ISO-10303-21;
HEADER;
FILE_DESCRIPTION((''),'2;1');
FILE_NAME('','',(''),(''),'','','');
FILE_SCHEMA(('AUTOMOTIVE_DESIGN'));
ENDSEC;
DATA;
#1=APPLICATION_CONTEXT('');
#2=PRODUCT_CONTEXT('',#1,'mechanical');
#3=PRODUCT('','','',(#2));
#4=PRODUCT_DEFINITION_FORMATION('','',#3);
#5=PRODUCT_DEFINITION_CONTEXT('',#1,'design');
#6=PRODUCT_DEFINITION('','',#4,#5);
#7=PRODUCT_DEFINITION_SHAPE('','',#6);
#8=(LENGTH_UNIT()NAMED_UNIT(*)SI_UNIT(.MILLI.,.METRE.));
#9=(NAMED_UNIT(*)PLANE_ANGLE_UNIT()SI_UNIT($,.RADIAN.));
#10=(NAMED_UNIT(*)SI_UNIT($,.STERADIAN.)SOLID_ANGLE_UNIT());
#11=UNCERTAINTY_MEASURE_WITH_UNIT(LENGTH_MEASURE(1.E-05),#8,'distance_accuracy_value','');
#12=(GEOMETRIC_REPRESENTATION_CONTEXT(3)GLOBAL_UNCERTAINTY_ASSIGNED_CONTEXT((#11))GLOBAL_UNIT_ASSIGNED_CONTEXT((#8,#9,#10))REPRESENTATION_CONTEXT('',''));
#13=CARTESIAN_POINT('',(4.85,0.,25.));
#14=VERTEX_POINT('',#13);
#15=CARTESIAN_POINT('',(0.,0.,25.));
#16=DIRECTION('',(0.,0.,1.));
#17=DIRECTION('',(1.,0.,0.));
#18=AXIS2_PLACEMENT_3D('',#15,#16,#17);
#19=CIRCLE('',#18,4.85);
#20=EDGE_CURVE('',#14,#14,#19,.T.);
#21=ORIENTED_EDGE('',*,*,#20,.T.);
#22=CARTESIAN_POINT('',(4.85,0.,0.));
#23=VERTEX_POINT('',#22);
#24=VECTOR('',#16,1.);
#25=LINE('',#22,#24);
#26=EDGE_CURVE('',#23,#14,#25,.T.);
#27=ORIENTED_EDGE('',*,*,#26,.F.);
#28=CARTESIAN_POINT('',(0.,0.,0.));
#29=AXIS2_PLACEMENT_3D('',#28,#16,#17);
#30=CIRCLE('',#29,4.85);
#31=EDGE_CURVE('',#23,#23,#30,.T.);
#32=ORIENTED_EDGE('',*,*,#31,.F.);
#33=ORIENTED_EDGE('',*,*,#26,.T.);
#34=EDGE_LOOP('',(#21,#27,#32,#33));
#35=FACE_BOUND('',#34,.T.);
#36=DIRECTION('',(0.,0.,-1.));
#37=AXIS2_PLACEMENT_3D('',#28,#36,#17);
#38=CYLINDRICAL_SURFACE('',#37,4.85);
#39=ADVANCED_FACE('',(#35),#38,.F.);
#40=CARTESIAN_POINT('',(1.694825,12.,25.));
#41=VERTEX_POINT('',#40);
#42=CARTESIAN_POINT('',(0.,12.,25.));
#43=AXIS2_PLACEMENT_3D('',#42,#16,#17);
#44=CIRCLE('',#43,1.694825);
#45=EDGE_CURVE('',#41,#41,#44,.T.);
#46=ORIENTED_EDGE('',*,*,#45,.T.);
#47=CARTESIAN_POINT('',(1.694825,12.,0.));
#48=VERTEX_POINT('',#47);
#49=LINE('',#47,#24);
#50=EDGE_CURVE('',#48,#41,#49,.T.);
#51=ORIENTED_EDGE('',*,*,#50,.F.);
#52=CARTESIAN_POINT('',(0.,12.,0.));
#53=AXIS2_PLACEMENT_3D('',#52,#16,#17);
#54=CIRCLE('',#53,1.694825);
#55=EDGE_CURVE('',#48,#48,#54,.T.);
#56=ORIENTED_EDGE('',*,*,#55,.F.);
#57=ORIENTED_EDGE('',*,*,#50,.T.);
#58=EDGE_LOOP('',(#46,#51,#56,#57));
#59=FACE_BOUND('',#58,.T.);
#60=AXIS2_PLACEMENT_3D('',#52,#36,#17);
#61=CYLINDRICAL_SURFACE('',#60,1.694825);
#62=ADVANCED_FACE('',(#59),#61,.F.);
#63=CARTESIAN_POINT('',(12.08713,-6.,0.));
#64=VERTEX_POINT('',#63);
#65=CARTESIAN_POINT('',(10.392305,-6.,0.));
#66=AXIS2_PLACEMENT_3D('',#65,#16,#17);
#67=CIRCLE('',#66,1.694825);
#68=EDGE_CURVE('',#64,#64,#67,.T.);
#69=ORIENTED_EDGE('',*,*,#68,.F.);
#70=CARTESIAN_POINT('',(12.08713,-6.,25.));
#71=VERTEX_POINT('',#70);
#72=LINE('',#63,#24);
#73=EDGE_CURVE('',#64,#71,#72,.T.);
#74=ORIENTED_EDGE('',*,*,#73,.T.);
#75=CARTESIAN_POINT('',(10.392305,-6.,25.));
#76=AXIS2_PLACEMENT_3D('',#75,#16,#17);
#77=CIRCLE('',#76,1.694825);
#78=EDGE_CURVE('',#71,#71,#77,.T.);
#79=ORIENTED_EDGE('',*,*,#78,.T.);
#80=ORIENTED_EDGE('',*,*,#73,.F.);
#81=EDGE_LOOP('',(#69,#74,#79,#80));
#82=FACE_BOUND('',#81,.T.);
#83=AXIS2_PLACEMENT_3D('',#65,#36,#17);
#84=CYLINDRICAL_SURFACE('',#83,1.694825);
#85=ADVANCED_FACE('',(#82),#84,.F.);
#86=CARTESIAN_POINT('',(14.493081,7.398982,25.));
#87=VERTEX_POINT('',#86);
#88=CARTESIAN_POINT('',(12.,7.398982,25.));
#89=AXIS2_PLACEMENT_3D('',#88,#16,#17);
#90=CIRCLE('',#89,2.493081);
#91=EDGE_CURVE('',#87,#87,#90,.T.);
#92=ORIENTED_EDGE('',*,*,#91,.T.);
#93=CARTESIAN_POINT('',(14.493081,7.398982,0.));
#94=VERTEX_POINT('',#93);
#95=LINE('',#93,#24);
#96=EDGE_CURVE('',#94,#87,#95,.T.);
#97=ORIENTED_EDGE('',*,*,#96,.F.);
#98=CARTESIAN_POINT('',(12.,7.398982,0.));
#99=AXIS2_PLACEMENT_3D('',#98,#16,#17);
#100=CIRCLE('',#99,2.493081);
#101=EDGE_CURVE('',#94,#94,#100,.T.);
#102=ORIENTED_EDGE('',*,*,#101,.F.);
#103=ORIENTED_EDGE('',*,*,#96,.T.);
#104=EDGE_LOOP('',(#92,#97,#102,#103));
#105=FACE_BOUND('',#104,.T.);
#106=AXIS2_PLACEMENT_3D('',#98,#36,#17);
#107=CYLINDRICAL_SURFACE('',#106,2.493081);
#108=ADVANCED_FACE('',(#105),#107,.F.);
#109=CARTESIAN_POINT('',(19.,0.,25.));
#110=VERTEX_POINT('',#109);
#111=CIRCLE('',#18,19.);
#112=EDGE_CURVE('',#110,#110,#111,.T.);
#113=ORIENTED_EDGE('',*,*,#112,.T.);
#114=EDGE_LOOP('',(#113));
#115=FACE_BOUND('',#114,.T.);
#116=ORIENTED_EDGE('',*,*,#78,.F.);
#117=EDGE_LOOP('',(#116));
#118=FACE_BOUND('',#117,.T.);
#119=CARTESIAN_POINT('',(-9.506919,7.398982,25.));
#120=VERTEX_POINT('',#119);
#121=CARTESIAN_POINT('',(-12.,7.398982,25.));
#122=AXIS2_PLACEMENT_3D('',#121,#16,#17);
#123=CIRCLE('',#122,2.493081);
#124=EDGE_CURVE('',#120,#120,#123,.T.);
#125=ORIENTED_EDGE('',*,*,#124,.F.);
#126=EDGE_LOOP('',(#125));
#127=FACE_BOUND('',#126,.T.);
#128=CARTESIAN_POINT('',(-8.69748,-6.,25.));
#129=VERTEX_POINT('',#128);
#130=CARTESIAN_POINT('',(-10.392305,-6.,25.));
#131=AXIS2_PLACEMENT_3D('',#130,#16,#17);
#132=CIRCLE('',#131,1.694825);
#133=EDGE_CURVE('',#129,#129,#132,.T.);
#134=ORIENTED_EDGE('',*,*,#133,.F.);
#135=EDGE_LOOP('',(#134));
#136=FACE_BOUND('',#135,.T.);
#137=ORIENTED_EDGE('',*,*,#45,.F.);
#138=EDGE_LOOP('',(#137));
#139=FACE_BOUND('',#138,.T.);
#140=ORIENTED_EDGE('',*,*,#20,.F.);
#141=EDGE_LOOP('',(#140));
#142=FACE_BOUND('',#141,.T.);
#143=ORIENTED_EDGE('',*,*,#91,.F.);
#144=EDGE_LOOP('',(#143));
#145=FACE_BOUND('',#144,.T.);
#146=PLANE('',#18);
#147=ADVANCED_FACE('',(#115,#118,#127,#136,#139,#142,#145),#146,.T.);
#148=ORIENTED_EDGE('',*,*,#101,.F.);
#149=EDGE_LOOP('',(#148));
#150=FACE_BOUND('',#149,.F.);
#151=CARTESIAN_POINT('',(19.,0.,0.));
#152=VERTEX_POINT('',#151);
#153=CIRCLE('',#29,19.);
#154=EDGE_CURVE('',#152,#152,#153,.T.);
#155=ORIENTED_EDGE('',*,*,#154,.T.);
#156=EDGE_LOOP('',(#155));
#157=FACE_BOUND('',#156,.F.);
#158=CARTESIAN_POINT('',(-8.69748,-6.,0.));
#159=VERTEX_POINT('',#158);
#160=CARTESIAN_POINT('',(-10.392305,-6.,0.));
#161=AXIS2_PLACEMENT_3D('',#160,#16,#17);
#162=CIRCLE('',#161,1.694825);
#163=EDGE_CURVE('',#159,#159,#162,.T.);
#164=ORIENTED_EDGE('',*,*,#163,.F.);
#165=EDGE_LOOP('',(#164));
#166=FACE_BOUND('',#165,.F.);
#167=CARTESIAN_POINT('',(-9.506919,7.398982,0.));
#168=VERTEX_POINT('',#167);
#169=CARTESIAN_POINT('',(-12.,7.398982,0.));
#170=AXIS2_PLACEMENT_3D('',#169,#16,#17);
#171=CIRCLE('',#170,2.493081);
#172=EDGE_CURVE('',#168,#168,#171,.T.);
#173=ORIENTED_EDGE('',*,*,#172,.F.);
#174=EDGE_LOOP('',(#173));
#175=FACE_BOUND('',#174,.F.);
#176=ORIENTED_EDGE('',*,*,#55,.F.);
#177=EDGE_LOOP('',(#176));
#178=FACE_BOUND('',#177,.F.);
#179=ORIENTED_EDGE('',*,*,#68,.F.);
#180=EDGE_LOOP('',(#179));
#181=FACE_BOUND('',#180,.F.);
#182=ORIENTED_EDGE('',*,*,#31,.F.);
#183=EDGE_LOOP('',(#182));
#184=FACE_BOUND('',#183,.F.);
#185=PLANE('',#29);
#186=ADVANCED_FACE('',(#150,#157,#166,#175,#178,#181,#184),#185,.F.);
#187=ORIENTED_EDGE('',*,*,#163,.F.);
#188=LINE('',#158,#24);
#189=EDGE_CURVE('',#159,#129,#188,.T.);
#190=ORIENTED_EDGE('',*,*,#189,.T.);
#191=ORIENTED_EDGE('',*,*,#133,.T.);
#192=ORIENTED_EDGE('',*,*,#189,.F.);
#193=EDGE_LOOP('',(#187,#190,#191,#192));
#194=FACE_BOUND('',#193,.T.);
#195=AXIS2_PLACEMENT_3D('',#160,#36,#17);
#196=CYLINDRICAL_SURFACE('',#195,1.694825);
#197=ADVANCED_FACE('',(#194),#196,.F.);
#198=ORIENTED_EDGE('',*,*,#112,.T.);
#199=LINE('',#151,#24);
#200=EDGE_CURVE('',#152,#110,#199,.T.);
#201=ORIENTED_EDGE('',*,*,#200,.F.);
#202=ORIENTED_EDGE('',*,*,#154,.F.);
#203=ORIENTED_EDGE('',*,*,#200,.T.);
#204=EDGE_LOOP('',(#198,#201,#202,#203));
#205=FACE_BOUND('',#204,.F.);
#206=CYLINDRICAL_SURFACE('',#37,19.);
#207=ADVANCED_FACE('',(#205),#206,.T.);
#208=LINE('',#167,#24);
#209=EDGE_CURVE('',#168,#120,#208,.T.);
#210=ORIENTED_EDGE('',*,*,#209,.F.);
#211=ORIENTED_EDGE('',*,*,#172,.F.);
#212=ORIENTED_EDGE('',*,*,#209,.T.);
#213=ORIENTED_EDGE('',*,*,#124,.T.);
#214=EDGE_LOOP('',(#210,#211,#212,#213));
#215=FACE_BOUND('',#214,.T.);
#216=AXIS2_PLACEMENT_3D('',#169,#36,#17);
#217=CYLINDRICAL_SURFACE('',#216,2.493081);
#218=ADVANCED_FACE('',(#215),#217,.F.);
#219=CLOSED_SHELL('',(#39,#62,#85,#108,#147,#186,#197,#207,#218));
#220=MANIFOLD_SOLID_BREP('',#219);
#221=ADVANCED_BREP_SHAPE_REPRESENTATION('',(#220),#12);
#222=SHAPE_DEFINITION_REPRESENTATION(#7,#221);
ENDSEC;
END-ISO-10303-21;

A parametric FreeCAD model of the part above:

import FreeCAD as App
import Part
import Sketcher
from FreeCAD import Vector
Q = App.Units.Quantity

doc = App.newDocument("Part")
body = doc.addObject("PartDesign::Body", "Body")

sketch1 = body.newObject("Sketcher::SketchObject", "Sketch")
sketch1.AttachmentSupport = (doc.getObject("XY_Plane"), [""])
sketch1.MapMode = "FlatFace"
sketch1.addGeometry([
    Part.Circle(Vector(0, 0, 0), Vector(0, 0, 1), 19),
    Part.Circle(Vector(-10.392305, -6, 0), Vector(0, 0, 1), 1.694825),
    Part.Circle(Vector(0, 0, 0), Vector(0, 0, 1), 4.85),
    Part.Circle(Vector(10.392305, -6, 0), Vector(0, 0, 1), 1.694825),
    Part.Circle(Vector(-12, 7.398982, 0), Vector(0, 0, 1), 2.493081),
    Part.Circle(Vector(0, 12, 0), Vector(0, 0, 1), 1.694825),
    Part.Circle(Vector(12, 7.398982, 0), Vector(0, 0, 1), 2.493081),
], False)
sketch1.addConstraint([
    Sketcher.Constraint("Coincident", 0, 3, -1, 1),
    Sketcher.Constraint("Coincident", 2, 3, -1, 1),
    Sketcher.Constraint("Equal", 1, 3),
    Sketcher.Constraint("Equal", 3, 5),
    Sketcher.Constraint("Equal", 4, 6),
    Sketcher.Constraint("Symmetric", 1, 3, 3, 3, -2),
    Sketcher.Constraint("Symmetric", 4, 3, 6, 3, -2),
    Sketcher.Constraint("PointOnObject", 5, 3, -2),
    Sketcher.Constraint("Diameter", 0, Q("38 mm")),
    Sketcher.Constraint("Diameter", 2, Q("9.7 mm")),
    Sketcher.Constraint("DistanceY", 1, 3, -1, 1, Q("6 mm")),
    Sketcher.Constraint("DistanceX", 4, 3, -1, 1, Q("12 mm")),
    Sketcher.Constraint("DistanceY", -1, 1, 5, 3, Q("12 mm")),
    Sketcher.Constraint("Diameter", 1, Q("3.38965 mm")),
    Sketcher.Constraint("Diameter", 4, Q("4.986162 mm")),
    Sketcher.Constraint("DistanceX", 1, 3, 3, 3, Q("20.78461 mm")),
    Sketcher.Constraint("DistanceY", -1, 1, 4, 3, Q("7.398982 mm")),
])
pad1 = body.newObject("PartDesign::Pad", "Pad")
pad1.Profile = sketch1
pad1.Length = 25

doc.recompute()
